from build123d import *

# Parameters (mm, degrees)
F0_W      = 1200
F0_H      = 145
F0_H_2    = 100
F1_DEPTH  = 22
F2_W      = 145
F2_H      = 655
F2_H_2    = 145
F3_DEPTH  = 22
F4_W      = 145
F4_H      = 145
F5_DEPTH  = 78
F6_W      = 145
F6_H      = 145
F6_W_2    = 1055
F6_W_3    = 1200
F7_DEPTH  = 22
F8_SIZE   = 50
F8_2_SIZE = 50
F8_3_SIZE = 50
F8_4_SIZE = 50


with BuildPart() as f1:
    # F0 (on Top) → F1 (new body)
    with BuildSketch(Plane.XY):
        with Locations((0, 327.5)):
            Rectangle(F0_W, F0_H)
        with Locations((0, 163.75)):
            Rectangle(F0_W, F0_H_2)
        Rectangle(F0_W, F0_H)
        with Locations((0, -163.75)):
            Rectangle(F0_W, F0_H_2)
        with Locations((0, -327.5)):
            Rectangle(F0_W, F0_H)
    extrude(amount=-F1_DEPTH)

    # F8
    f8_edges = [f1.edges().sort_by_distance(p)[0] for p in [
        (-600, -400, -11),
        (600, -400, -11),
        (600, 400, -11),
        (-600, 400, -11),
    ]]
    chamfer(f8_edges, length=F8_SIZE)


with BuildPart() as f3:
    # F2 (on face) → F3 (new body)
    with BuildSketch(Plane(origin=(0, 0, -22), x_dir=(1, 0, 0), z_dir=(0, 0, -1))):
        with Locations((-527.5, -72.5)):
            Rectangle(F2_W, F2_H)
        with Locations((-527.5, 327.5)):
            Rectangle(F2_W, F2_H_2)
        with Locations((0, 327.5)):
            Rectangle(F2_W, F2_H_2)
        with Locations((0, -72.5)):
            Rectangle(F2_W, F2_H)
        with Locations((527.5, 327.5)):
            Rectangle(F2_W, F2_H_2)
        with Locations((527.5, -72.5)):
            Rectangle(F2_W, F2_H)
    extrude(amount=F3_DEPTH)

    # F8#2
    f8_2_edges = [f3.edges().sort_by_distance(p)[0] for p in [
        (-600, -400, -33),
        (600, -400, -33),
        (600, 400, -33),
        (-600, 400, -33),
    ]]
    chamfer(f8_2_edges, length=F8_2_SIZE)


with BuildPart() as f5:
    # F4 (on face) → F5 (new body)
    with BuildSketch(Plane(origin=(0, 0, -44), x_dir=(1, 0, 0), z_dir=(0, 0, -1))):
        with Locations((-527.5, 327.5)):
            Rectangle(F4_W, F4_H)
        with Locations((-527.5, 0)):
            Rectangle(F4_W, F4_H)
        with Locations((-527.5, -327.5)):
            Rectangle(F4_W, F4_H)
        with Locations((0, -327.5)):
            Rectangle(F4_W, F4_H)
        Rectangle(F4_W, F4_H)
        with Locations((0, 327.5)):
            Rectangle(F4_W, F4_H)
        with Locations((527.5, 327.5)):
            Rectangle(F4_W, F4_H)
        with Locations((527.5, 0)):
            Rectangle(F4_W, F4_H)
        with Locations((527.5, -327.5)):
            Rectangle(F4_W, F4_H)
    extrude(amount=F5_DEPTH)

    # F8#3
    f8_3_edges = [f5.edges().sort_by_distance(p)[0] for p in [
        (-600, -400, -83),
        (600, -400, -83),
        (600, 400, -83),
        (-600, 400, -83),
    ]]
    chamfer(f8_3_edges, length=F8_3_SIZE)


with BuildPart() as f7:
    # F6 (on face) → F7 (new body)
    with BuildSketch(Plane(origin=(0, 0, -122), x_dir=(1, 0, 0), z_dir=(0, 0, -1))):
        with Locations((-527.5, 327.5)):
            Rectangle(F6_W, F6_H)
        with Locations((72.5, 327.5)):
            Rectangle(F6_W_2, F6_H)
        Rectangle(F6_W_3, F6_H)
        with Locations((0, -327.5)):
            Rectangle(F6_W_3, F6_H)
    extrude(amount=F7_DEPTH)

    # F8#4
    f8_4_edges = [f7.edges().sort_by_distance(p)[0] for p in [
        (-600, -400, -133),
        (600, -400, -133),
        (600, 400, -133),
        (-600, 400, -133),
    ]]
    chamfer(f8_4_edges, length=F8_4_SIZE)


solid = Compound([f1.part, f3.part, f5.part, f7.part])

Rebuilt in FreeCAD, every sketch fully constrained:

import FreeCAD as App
import Part
import Sketcher


def edges_at(feature, points):
    """Names of the edges that pass closest to the given points."""
    edges = feature.Shape.Edges
    near = lambda p: min(range(len(edges)), key=lambda i: edges[i].distToShape(Part.Vertex(*p))[0])
    return sorted({f"Edge{near(p) + 1}" for p in points})


def add_polygon(sketch, points):
    """Adds a closed chain of lines whose ends are joined by coincident constraints."""
    first, n = sketch.GeometryCount, len(points)
    for a, b in zip(points, points[1:] + points[:1]):
        sketch.addGeometry(Part.LineSegment(App.Vector(*a, 0), App.Vector(*b, 0)), False)
    for i in range(n):
        sketch.addConstraint(Sketcher.Constraint("Coincident", first + i, 2, first + (i + 1) % n, 1))

doc = App.newDocument("Part")
body = doc.addObject("PartDesign::Body", "Body")
body.AllowCompound = True

sketch1 = body.newObject("Sketcher::SketchObject", "Sketch")
sketch1.AttachmentSupport = (doc.getObject("XY_Plane"), [""])
sketch1.MapMode = "FlatFace"
add_polygon(sketch1, [(-600, 400), (-600, 255), (600, 255), (600, 400)])
add_polygon(sketch1, [(-600, 214), (-600, 114), (600, 114), (600, 214)])
add_polygon(sketch1, [(-600, 72), (-600, -72), (600, -72), (600, 72)])
add_polygon(sketch1, [(-600, -114), (-600, -214), (600, -214), (600, -114)])
add_polygon(sketch1, [(-600, -255), (-600, -400), (600, -400), (600, -255)])
sketch1.addConstraint(Sketcher.Constraint("Vertical", 0))
sketch1.addConstraint(Sketcher.Constraint("Horizontal", 1))
sketch1.addConstraint(Sketcher.Constraint("Vertical", 2))
sketch1.addConstraint(Sketcher.Constraint("Horizontal", 3))
sketch1.addConstraint(Sketcher.Constraint("Vertical", 4))
sketch1.addConstraint(Sketcher.Constraint("Horizontal", 5))
sketch1.addConstraint(Sketcher.Constraint("Vertical", 6))
sketch1.addConstraint(Sketcher.Constraint("Horizontal", 7))
sketch1.addConstraint(Sketcher.Constraint("Vertical", 8))
sketch1.addConstraint(Sketcher.Constraint("Horizontal", 9))
sketch1.addConstraint(Sketcher.Constraint("Vertical", 10))
sketch1.addConstraint(Sketcher.Constraint("Horizontal", 11))
sketch1.addConstraint(Sketcher.Constraint("Vertical", 12))
sketch1.addConstraint(Sketcher.Constraint("Horizontal", 13))
sketch1.addConstraint(Sketcher.Constraint("Vertical", 14))
sketch1.addConstraint(Sketcher.Constraint("Horizontal", 15))
sketch1.addConstraint(Sketcher.Constraint("Vertical", 16))
sketch1.addConstraint(Sketcher.Constraint("Horizontal", 17))
sketch1.addConstraint(Sketcher.Constraint("Vertical", 18))
sketch1.addConstraint(Sketcher.Constraint("Horizontal", 19))
sketch1.addConstraint(Sketcher.Constraint("Symmetric", 8, 2, 10, 2, -1, 1))
sketch1.addConstraint(Sketcher.Constraint("Symmetric", 6, 2, 12, 2, -1, 1))
sketch1.addConstraint(Sketcher.Constraint("Symmetric", 4, 2, 14, 2, -1, 1))
sketch1.addConstraint(Sketcher.Constraint("Symmetric", 2, 2, 16, 2, -1, 1))
sketch1.addConstraint(Sketcher.Constraint("Symmetric", 0, 2, 18, 2, -1, 1))
sketch1.addConstraint(Sketcher.Constraint("Vertical", 3, 2, 4, 2))
sketch1.addConstraint(Sketcher.Constraint("Vertical", 2, 2, 5, 2))
sketch1.addConstraint(Sketcher.Constraint("Vertical", 7, 2, 8, 2))
sketch1.addConstraint(Sketcher.Constraint("Vertical", 6, 2, 9, 2))
sketch1.addConstraint(Sketcher.Constraint("Equal", 2, 8))
sketch1.addConstraint(Sketcher.Constraint("DistanceX", 1, 1, 1, 2, 1200.0))
sketch1.addConstraint(Sketcher.Constraint("DistanceY", 0, 2, 0, 1, 145.0))
sketch1.addConstraint(Sketcher.Constraint("DistanceY", 4, 2, 4, 1, 100.0))
sketch1.addConstraint(Sketcher.Constraint("DistanceY", -1, 1, 0, 2, 255.0))
sketch1.addConstraint(Sketcher.Constraint("DistanceY", 12, 2, 4, 2, 327.5))
pad1 = body.newObject("PartDesign::Pad", "Pad")
pad1.Profile = sketch1
pad1.Length = 22
pad1.Reversed = True
doc.recompute()

chamfer = body.newObject("PartDesign::Chamfer", "Chamfer")
chamfer.Base = (pad1, edges_at(pad1, [
    (-600, -400, -11),
    (600, -400, -11),
    (600, 400, -11),
    (-600, 400, -11),
]))
chamfer.Size = 50
body2 = doc.addObject("PartDesign::Body", "Body001")
body2.AllowCompound = True

sketch2 = body2.newObject("Sketcher::SketchObject", "Sketch001")
sketch2.AttachmentSupport = (doc.getObject("XY_Plane001"), [""])
sketch2.MapMode = "FlatFace"
sketch2.AttachmentOffset = App.Placement(App.Vector(0, 0, -22), App.Rotation())
add_polygon(sketch2, [(-600, 400), (-455, 400), (-455, -400), (-600, -400)])
add_polygon(sketch2, [(-72, -400), (-72, 400), (72, 400), (72, -400)])
add_polygon(sketch2, [(455, -400), (455, 400), (600, 400), (600, -400)])
sketch2.addConstraint(Sketcher.Constraint("Horizontal", 0))
sketch2.addConstraint(Sketcher.Constraint("Vertical", 1))
sketch2.addConstraint(Sketcher.Constraint("Horizontal", 2))
sketch2.addConstraint(Sketcher.Constraint("Vertical", 3))
sketch2.addConstraint(Sketcher.Constraint("Vertical", 4))
sketch2.addConstraint(Sketcher.Constraint("Horizontal", 5))
sketch2.addConstraint(Sketcher.Constraint("Vertical", 6))
sketch2.addConstraint(Sketcher.Constraint("Horizontal", 7))
sketch2.addConstraint(Sketcher.Constraint("Vertical", 8))
sketch2.addConstraint(Sketcher.Constraint("Horizontal", 9))
sketch2.addConstraint(Sketcher.Constraint("Vertical", 10))
sketch2.addConstraint(Sketcher.Constraint("Horizontal", 11))
sketch2.addConstraint(Sketcher.Constraint("Symmetric", 4, 2, 6, 2, -1, 1))
sketch2.addConstraint(Sketcher.Constraint("Symmetric", 1, 2, 8, 2, -1, 1))
sketch2.addConstraint(Sketcher.Constraint("Symmetric", 3, 2, 10, 2, -1, 1))
sketch2.addConstraint(Sketcher.Constraint("Horizontal", 3, 2, 4, 2))
sketch2.addConstraint(Sketcher.Constraint("Horizontal", 2, 2, 6, 2))
sketch2.addConstraint(Sketcher.Constraint("Equal", 2, 5))
sketch2.addConstraint(Sketcher.Constraint("DistanceX", 0, 1, 0, 2, 145.0))
sketch2.addConstraint(Sketcher.Constraint("DistanceY", 1, 2, 1, 1, 800.0))
sketch2.addConstraint(Sketcher.Constraint("DistanceX", 0, 2, -1, 1, 455.0))
pad2 = body2.newObject("PartDesign::Pad", "Pad001")
pad2.Profile = sketch2
pad2.Length = 22
pad2.Reversed = True
doc.recompute()

chamfer2 = body2.newObject("PartDesign::Chamfer", "Chamfer001")
chamfer2.Base = (pad2, edges_at(pad2, [
    (-600, -400, -33),
    (600, -400, -33),
    (600, 400, -33),
    (-600, 400, -33),
]))
chamfer2.Size = 50
body3 = doc.addObject("PartDesign::Body", "Body002")
body3.AllowCompound = True

sketch3 = body3.newObject("Sketcher::SketchObject", "Sketch002")
sketch3.AttachmentSupport = (doc.getObject("XY_Plane002"), [""])
sketch3.MapMode = "FlatFace"
sketch3.AttachmentOffset = App.Placement(App.Vector(0, 0, -44), App.Rotation())
add_polygon(sketch3, [(-600, -400), (-600, -255), (-455, -255), (-455, -400)])
add_polygon(sketch3, [(-600, -72), (-600, 72), (-455, 72), (-455, -72)])
add_polygon(sketch3, [(-600, 255), (-600, 400), (-455, 400), (-455, 255)])
add_polygon(sketch3, [(-72, 255), (-72, 400), (72, 400), (72, 255)])
add_polygon(sketch3, [(-72, -72), (-72, 72), (72, 72), (72, -72)])
add_polygon(sketch3, [(-72, -400), (-72, -255), (72, -255), (72, -400)])
add_polygon(sketch3, [(455, -400), (455, -255), (600, -255), (600, -400)])
add_polygon(sketch3, [(455, -72), (455, 72), (600, 72), (600, -72)])
add_polygon(sketch3, [(455, 255), (455, 400), (600, 400), (600, 255)])
sketch3.addConstraint(Sketcher.Constraint("Vertical", 0))
sketch3.addConstraint(Sketcher.Constraint("Horizontal", 1))
sketch3.addConstraint(Sketcher.Constraint("Vertical", 2))
sketch3.addConstraint(Sketcher.Constraint("Horizontal", 3))
sketch3.addConstraint(Sketcher.Constraint("Vertical", 4))
sketch3.addConstraint(Sketcher.Constraint("Horizontal", 5))
sketch3.addConstraint(Sketcher.Constraint("Vertical", 6))
sketch3.addConstraint(Sketcher.Constraint("Horizontal", 7))
sketch3.addConstraint(Sketcher.Constraint("Vertical", 8))
sketch3.addConstraint(Sketcher.Constraint("Horizontal", 9))
sketch3.addConstraint(Sketcher.Constraint("Vertical", 10))
sketch3.addConstraint(Sketcher.Constraint("Horizontal", 11))
sketch3.addConstraint(Sketcher.Constraint("Vertical", 12))
sketch3.addConstraint(Sketcher.Constraint("Horizontal", 13))
sketch3.addConstraint(Sketcher.Constraint("Vertical", 14))
sketch3.addConstraint(Sketcher.Constraint("Horizontal", 15))
sketch3.addConstraint(Sketcher.Constraint("Vertical", 16))
sketch3.addConstraint(Sketcher.Constraint("Horizontal", 17))
sketch3.addConstraint(Sketcher.Constraint("Vertical", 18))
sketch3.addConstraint(Sketcher.Constraint("Horizontal", 19))
sketch3.addConstraint(Sketcher.Constraint("Vertical", 20))
sketch3.addConstraint(Sketcher.Constraint("Horizontal", 21))
sketch3.addConstraint(Sketcher.Constraint("Vertical", 22))
sketch3.addConstraint(Sketcher.Constraint("Horizontal", 23))
sketch3.addConstraint(Sketcher.Constraint("Vertical", 24))
sketch3.addConstraint(Sketcher.Constraint("Horizontal", 25))
sketch3.addConstraint(Sketcher.Constraint("Vertical", 26))
sketch3.addConstraint(Sketcher.Constraint("Horizontal", 27))
sketch3.addConstraint(Sketcher.Constraint("Vertical", 28))
sketch3.addConstraint(Sketcher.Constraint("Horizontal", 29))
sketch3.addConstraint(Sketcher.Constraint("Vertical", 30))
sketch3.addConstraint(Sketcher.Constraint("Horizontal", 31))
sketch3.addConstraint(Sketcher.Constraint("Vertical", 32))
sketch3.addConstraint(Sketcher.Constraint("Horizontal", 33))
sketch3.addConstraint(Sketcher.Constraint("Vertical", 34))
sketch3.addConstraint(Sketcher.Constraint("Horizontal", 35))
sketch3.addConstraint(Sketcher.Constraint("Symmetric", 16, 2, 18, 2, -1, 1))
sketch3.addConstraint(Sketcher.Constraint("Symmetric", 14, 2, 20, 2, -1, 1))
sketch3.addConstraint(Sketcher.Constraint("Symmetric", 12, 2, 22, 2, -1, 1))
sketch3.addConstraint(Sketcher.Constraint("Symmetric", 10, 2, 24, 2, -1, 1))
sketch3.addConstraint(Sketcher.Constraint("Symmetric", 8, 2, 26, 2, -1, 1))
sketch3.addConstraint(Sketcher.Constraint("Symmetric", 6, 2, 28, 2, -1, 1))
sketch3.addConstraint(Sketcher.Constraint("Symmetric", 4, 2, 30, 2, -1, 1))
sketch3.addConstraint(Sketcher.Constraint("Symmetric", 2, 2, 32, 2, -1, 1))
sketch3.addConstraint(Sketcher.Constraint("Symmetric", 0, 2, 34, 2, -1, 1))
sketch3.addConstraint(Sketcher.Constraint("Symmetric", 1, 2, 24, 2, -2))
sketch3.addConstraint(Sketcher.Constraint("Symmetric", 3, 2, 26, 2, -2))
sketch3.addConstraint(Sketcher.Constraint("Horizontal", 9, 2, 12, 2))
sketch3.addConstraint(Sketcher.Constraint("Horizontal", 11, 2, 14, 2))
sketch3.addConstraint(Sketcher.Constraint("Horizontal", 5, 2, 16, 2))
sketch3.addConstraint(Sketcher.Constraint("Horizontal", 7, 2, 18, 2))
sketch3.addConstraint(Sketcher.Constraint("Vertical", 3, 2, 4, 2))
sketch3.addConstraint(Sketcher.Constraint("Vertical", 2, 2, 5, 2))
sketch3.addConstraint(Sketcher.Constraint("Vertical", 15, 2, 16, 2))
sketch3.addConstraint(Sketcher.Constraint("Vertical", 14, 2, 17, 2))
sketch3.addConstraint(Sketcher.Constraint("Equal", 11, 13))
sketch3.addConstraint(Sketcher.Constraint("Equal", 35, 0))
sketch3.addConstraint(Sketcher.Constraint("Equal", 2, 4))
sketch3.addConstraint(Sketcher.Constraint("DistanceX", 1, 1, 1, 2, 145.0))
sketch3.addConstraint(Sketcher.Constraint("DistanceX", 0, 2, -1, 1, 600.0))
sketch3.addConstraint(Sketcher.Constraint("DistanceY", 0, 2, -1, 1, 255.0))
pad3 = body3.newObject("PartDesign::Pad", "Pad002")
pad3.Profile = sketch3
pad3.Length = 78
pad3.Reversed = True
doc.recompute()

chamfer3 = body3.newObject("PartDesign::Chamfer", "Chamfer002")
chamfer3.Base = (pad3, edges_at(pad3, [
    (-600, -400, -83),
    (600, -400, -83),
    (600, 400, -83),
    (-600, 400, -83),
]))
chamfer3.Size = 50
body4 = doc.addObject("PartDesign::Body", "Body003")
body4.AllowCompound = True

sketch4 = body4.newObject("Sketcher::SketchObject", "Sketch003")
sketch4.AttachmentSupport = (doc.getObject("XY_Plane003"), [""])
sketch4.MapMode = "FlatFace"
sketch4.AttachmentOffset = App.Placement(App.Vector(0, 0, -122), App.Rotation())
add_polygon(sketch4, [(-600, -400), (-600, -255), (600, -255), (600, -400)])
add_polygon(sketch4, [(-600, -72), (-600, 72), (600, 72), (600, -72)])
add_polygon(sketch4, [(-600, 255), (-600, 400), (600, 400), (600, 255)])
sketch4.addConstraint(Sketcher.Constraint("Vertical", 0))
sketch4.addConstraint(Sketcher.Constraint("Horizontal", 1))
sketch4.addConstraint(Sketcher.Constraint("Vertical", 2))
sketch4.addConstraint(Sketcher.Constraint("Horizontal", 3))
sketch4.addConstraint(Sketcher.Constraint("Vertical", 4))
sketch4.addConstraint(Sketcher.Constraint("Horizontal", 5))
sketch4.addConstraint(Sketcher.Constraint("Vertical", 6))
sketch4.addConstraint(Sketcher.Constraint("Horizontal", 7))
sketch4.addConstraint(Sketcher.Constraint("Vertical", 8))
sketch4.addConstraint(Sketcher.Constraint("Horizontal", 9))
sketch4.addConstraint(Sketcher.Constraint("Vertical", 10))
sketch4.addConstraint(Sketcher.Constraint("Horizontal", 11))
sketch4.addConstraint(Sketcher.Constraint("Symmetric", 4, 2, 6, 2, -1, 1))
sketch4.addConstraint(Sketcher.Constraint("Symmetric", 2, 2, 8, 2, -1, 1))
sketch4.addConstraint(Sketcher.Constraint("Symmetric", 0, 2, 10, 2, -1, 1))
sketch4.addConstraint(Sketcher.Constraint("Vertical", 3, 2, 4, 2))
sketch4.addConstraint(Sketcher.Constraint("Vertical", 2, 2, 5, 2))
sketch4.addConstraint(Sketcher.Constraint("Equal", 2, 4))
sketch4.addConstraint(Sketcher.Constraint("DistanceX", 1, 1, 1, 2, 1200.0))
sketch4.addConstraint(Sketcher.Constraint("DistanceY", 0, 1, 0, 2, 145.0))
sketch4.addConstraint(Sketcher.Constraint("DistanceY", 0, 2, -1, 1, 255.0))
pad4 = body4.newObject("PartDesign::Pad", "Pad003")
pad4.Profile = sketch4
pad4.Length = 22
pad4.Reversed = True
doc.recompute()

chamfer4 = body4.newObject("PartDesign::Chamfer", "Chamfer003")
chamfer4.Base = (pad4, edges_at(pad4, [
    (-600, -400, -133),
    (600, -400, -133),
    (600, 400, -133),
    (-600, 400, -133),
]))
chamfer4.Size = 50

doc.recompute()
